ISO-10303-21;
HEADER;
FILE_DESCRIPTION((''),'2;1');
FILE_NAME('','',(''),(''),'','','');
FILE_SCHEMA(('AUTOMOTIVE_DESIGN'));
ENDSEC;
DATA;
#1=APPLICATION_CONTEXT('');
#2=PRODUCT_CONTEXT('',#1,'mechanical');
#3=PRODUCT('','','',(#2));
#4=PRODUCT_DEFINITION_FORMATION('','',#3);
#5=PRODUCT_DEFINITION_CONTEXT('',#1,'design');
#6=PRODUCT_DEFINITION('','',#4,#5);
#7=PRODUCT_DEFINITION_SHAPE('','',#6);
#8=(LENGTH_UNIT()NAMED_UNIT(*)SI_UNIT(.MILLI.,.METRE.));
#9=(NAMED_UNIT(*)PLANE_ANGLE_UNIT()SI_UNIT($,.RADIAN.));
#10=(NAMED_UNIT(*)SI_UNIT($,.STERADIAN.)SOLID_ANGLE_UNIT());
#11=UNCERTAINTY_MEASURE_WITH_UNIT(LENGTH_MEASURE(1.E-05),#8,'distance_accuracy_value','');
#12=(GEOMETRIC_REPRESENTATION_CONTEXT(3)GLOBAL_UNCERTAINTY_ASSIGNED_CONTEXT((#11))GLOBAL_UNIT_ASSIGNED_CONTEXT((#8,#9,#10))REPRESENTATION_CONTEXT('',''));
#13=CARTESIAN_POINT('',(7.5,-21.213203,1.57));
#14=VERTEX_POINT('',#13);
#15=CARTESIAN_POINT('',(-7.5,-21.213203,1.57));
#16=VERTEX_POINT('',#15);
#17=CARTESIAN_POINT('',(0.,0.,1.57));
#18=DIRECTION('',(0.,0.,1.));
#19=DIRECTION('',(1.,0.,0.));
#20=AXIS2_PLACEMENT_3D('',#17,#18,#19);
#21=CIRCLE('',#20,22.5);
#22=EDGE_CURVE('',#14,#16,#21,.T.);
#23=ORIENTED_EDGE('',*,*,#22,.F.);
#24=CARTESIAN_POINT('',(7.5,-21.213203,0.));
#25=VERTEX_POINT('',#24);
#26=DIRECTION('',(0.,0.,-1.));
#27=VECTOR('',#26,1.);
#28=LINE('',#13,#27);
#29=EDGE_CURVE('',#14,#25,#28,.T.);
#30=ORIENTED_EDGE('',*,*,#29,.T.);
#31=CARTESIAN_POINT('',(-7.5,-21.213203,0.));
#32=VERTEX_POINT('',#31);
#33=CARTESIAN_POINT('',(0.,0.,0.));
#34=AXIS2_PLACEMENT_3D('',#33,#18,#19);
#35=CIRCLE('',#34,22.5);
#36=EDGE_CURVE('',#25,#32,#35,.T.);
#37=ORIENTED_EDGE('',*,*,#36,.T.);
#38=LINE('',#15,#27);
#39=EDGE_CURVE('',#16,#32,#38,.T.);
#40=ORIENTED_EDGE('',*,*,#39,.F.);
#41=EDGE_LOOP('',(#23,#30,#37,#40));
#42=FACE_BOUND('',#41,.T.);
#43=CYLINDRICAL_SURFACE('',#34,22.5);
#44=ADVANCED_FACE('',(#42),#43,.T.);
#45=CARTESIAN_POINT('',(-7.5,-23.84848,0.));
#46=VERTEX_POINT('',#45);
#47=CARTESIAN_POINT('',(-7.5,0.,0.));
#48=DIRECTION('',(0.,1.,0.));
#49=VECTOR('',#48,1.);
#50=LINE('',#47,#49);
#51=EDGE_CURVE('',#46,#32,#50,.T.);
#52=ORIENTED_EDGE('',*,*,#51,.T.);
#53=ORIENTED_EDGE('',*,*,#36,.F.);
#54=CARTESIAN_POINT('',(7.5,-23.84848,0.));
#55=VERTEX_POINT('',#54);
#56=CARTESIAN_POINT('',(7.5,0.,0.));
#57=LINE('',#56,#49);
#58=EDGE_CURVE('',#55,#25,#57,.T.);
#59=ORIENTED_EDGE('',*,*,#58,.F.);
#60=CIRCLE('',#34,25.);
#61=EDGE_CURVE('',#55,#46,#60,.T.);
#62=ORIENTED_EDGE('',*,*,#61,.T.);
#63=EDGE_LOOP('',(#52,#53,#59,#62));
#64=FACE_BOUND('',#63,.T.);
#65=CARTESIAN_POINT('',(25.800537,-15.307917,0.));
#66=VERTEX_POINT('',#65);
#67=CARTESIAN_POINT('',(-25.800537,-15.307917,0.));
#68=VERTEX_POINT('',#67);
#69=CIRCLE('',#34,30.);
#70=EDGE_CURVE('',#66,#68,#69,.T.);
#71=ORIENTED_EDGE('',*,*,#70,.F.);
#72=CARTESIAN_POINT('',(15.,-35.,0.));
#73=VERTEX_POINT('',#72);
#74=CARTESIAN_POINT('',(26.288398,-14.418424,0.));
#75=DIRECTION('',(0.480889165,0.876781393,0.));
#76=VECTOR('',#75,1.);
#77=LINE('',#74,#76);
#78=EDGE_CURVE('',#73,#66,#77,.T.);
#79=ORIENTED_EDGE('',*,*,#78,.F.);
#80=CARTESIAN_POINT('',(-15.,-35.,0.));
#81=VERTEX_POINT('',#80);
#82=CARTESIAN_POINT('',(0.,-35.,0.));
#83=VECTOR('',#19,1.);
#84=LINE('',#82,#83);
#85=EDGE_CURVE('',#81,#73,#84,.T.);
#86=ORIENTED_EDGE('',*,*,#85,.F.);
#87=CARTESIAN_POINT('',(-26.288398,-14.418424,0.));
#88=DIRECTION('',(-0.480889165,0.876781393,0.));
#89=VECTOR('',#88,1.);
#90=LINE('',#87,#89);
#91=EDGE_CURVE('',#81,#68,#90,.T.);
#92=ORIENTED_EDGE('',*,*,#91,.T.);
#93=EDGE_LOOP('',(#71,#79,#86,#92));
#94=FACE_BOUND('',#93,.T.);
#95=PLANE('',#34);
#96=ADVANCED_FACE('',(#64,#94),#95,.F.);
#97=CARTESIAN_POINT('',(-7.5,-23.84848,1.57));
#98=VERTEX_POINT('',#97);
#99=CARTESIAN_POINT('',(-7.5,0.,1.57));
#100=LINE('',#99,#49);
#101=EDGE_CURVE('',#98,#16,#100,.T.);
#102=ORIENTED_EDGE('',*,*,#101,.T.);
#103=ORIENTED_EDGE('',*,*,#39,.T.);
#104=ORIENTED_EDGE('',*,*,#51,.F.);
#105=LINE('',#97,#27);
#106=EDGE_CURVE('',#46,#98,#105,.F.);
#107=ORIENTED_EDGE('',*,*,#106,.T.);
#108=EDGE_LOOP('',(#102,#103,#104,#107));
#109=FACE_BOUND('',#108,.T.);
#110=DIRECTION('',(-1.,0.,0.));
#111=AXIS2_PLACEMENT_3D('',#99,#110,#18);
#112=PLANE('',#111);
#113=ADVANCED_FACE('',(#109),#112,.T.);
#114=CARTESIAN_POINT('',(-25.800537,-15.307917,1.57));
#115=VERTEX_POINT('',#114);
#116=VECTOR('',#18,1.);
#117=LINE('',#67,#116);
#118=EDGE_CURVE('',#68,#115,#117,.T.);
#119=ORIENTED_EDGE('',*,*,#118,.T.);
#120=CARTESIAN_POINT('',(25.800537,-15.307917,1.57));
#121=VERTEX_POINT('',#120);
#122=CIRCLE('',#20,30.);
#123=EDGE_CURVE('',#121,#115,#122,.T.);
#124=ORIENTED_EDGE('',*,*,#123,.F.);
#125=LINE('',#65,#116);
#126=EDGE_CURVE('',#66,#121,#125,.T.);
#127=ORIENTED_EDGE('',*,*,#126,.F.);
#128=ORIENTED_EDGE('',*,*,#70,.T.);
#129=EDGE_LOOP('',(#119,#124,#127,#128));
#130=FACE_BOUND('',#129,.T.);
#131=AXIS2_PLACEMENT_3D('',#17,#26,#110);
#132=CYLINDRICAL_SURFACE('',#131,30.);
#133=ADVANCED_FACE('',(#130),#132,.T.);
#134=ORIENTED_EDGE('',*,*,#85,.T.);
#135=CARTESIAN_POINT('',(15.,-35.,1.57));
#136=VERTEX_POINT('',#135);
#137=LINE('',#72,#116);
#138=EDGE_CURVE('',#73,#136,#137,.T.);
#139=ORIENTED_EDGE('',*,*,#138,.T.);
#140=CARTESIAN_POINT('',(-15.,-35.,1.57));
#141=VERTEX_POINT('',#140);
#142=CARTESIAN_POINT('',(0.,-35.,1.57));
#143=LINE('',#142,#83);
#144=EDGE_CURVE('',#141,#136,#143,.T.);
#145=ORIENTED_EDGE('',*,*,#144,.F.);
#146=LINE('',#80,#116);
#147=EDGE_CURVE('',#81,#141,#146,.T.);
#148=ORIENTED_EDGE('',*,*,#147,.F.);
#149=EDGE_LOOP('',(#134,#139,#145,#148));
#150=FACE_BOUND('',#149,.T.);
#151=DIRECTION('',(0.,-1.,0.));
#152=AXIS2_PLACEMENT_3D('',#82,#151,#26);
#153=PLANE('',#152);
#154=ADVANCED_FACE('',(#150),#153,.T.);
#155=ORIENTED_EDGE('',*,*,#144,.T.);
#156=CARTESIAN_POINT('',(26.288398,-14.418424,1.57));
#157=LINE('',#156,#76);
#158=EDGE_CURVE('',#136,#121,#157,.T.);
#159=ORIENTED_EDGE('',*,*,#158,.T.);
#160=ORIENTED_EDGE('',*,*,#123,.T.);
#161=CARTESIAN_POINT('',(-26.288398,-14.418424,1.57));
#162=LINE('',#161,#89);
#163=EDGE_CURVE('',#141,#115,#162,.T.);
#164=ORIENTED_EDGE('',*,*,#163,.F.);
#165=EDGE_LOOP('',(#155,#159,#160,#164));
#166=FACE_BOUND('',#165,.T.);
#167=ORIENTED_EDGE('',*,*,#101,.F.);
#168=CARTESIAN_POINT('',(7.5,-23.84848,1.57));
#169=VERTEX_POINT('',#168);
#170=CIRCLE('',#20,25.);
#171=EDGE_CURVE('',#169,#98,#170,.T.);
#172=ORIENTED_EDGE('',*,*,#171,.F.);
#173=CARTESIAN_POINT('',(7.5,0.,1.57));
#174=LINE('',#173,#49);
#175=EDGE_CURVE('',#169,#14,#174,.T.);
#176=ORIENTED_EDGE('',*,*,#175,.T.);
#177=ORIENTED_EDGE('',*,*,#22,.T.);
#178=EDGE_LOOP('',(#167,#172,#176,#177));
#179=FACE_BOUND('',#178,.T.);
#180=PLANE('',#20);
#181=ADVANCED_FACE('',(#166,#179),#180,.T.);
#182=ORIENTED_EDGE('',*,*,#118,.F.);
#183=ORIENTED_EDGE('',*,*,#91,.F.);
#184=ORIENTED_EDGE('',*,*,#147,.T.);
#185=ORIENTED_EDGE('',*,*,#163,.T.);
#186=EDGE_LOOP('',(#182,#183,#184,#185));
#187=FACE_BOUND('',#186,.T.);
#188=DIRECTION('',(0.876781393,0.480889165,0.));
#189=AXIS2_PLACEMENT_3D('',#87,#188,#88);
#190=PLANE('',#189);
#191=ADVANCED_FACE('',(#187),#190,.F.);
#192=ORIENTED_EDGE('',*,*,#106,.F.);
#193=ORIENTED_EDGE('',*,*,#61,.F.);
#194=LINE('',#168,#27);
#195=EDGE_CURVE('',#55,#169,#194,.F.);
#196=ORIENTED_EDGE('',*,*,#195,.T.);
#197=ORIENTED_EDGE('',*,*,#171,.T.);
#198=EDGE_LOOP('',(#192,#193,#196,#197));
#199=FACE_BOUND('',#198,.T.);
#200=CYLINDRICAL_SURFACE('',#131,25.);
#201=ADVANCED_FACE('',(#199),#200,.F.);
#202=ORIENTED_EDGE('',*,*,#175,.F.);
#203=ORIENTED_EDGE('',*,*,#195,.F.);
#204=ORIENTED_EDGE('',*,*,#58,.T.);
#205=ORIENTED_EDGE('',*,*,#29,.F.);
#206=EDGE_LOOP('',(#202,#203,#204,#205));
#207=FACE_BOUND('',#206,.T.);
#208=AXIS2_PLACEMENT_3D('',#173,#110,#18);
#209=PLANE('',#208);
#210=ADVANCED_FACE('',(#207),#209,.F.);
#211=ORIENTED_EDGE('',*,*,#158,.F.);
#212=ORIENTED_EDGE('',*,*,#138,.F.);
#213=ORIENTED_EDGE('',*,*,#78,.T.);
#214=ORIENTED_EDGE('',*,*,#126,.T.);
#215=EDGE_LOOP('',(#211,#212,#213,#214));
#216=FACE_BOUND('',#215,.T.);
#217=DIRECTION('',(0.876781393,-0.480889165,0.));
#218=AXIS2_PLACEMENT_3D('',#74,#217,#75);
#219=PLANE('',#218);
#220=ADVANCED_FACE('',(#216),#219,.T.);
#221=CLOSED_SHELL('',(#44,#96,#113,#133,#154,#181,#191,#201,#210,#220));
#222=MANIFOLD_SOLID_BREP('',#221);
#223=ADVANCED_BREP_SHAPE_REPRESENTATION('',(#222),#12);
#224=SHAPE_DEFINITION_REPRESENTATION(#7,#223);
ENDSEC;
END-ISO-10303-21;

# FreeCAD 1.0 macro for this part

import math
import FreeCAD as App
import Part
import Sketcher

doc = App.newDocument("Part")
body = doc.addObject("PartDesign::Body", "Body")

# Sketch on XY plane
sketch1 = doc.addObject("Sketcher::SketchObject", "Sketch")
body.addObject(sketch1)
sketch1.AttachmentSupport = (doc.XY_Plane, [""])
sketch1.MapMode = "FlatFace"
sketch1.addGeometry(Part.Circle(App.Vector(0, 0, 0), App.Vector(0, 0, 1), 30), False)
sketch1.addGeometry(Part.Circle(App.Vector(0, 0, 0), App.Vector(0, 0, 1), 25), False)
sketch1.addConstraint(Sketcher.Constraint("Coincident", 0, 3, -1, 1))
sketch1.addConstraint(Sketcher.Constraint("Coincident", 1, 3, -1, 1))
sketch1.addConstraint(Sketcher.Constraint("Diameter", 0, 60.0))
sketch1.addConstraint(Sketcher.Constraint("Diameter", 1, 50.0))
pad1 = doc.addObject("PartDesign::Pad", "Pad")
body.addObject(pad1)
pad1.Profile = sketch1
pad1.Length = 1.57

# Sketch on XY plane
sketch2 = doc.addObject("Sketcher::SketchObject", "Sketch001")
body.addObject(sketch2)
sketch2.AttachmentSupport = (doc.XY_Plane, [""])
sketch2.MapMode = "FlatFace"
sketch2.addGeometry(Part.LineSegment(App.Vector(-26, -15, 0), App.Vector(-15, -35, 0)), False)
sketch2.addGeometry(Part.LineSegment(App.Vector(-15, -35, 0), App.Vector(15, -35, 0)), False)
sketch2.addGeometry(Part.LineSegment(App.Vector(15, -35, 0), App.Vector(26, -15, 0)), False)
sketch2.addGeometry(Part.ArcOfCircle(Part.Circle(App.Vector(0, 0, 0), App.Vector(0, 0, 1), 30), math.radians(-60), math.radians(-31)), False)
sketch2.addGeometry(Part.ArcOfCircle(Part.Circle(App.Vector(0, 0, 0), App.Vector(0, 0, 1), 30), math.radians(-90), math.radians(-60)), False)
sketch2.addGeometry(Part.ArcOfCircle(Part.Circle(App.Vector(0, 0, 0), App.Vector(0, 0, 1), 30), math.radians(-120), math.radians(-90)), False)
sketch2.addGeometry(Part.ArcOfCircle(Part.Circle(App.Vector(0, 0, 0), App.Vector(0, 0, 1), 30), math.radians(-149), math.radians(-120)), False)
sketch2.addConstraint(Sketcher.Constraint("Coincident", 0, 2, 1, 1))
sketch2.addConstraint(Sketcher.Constraint("Coincident", 1, 2, 2, 1))
sketch2.addConstraint(Sketcher.Constraint("Coincident", 2, 2, 3, 2))
sketch2.addConstraint(Sketcher.Constraint("Tangent", 3, 1, 4, 2))
sketch2.addConstraint(Sketcher.Constraint("Tangent", 4, 1, 5, 2))
sketch2.addConstraint(Sketcher.Constraint("Tangent", 5, 1, 6, 2))
sketch2.addConstraint(Sketcher.Constraint("Coincident", 6, 1, 0, 1))
sketch2.addConstraint(Sketcher.Constraint("Horizontal", 1))
sketch2.addConstraint(Sketcher.Constraint("Coincident", 3, 3, -1, 1))
sketch2.addConstraint(Sketcher.Constraint("Coincident", 5, 3, -1, 1))
sketch2.addConstraint(Sketcher.Constraint("Equal", 5, 6))
sketch2.addConstraint(Sketcher.Constraint("PointOnObject", 4, 1, -2))
sketch2.addConstraint(Sketcher.Constraint("Horizontal", 3, 1, 5, 1))
sketch2.addConstraint(Sketcher.Constraint("Horizontal", 2, 2, 6, 1))
sketch2.addConstraint(Sketcher.Constraint("Vertical", 1, 2, 3, 1))
sketch2.addConstraint(Sketcher.Constraint("Vertical", 0, 2, 5, 1))
sketch2.addConstraint(Sketcher.Constraint("Radius", 3, 30.0))
sketch2.addConstraint(Sketcher.Constraint("DistanceX", 1, 1, 1, 2, 30.0))
sketch2.addConstraint(Sketcher.Constraint("DistanceY", 0, 2, -1, 1, 35.0))
sketch2.addConstraint(Sketcher.Constraint("Distance", 0, 22.459513))
pad2 = doc.addObject("PartDesign::Pad", "Pad001")
body.addObject(pad2)
pad2.Profile = sketch2
pad2.Length = 1.57

# Sketch on XY plane
sketch3 = doc.addObject("Sketcher::SketchObject", "Sketch002")
body.addObject(sketch3)
sketch3.AttachmentSupport = (doc.XY_Plane, [""])
sketch3.MapMode = "FlatFace"
sketch3.addGeometry(Part.ArcOfCircle(Part.Circle(App.Vector(0, 0, 0), App.Vector(0, 0, 1), 22.5), math.radians(-109), math.radians(-71)), False)
sketch3.addGeometry(Part.LineSegment(App.Vector(-7.5, -21.2, 0), App.Vector(-7.5, -25, 0)), False)
sketch3.addGeometry(Part.LineSegment(App.Vector(-7.5, -25, 0), App.Vector(7.5, -25, 0)), False)
sketch3.addGeometry(Part.LineSegment(App.Vector(7.5, -25, 0), App.Vector(7.5, -21.2, 0)), False)
sketch3.addConstraint(Sketcher.Constraint("Coincident", 0, 1, 1, 1))
sketch3.addConstraint(Sketcher.Constraint("Coincident", 1, 2, 2, 1))
sketch3.addConstraint(Sketcher.Constraint("Coincident", 2, 2, 3, 1))
sketch3.addConstraint(Sketcher.Constraint("Coincident", 3, 2, 0, 2))
sketch3.addConstraint(Sketcher.Constraint("Vertical", 1))
sketch3.addConstraint(Sketcher.Constraint("Horizontal", 2))
sketch3.addConstraint(Sketcher.Constraint("Vertical", 3))
sketch3.addConstraint(Sketcher.Constraint("Coincident", 0, 3, -1, 1))
sketch3.addConstraint(Sketcher.Constraint("Horizontal", 0, 1, 3, 2))
sketch3.addConstraint(Sketcher.Constraint("Radius", 0, 22.5))
sketch3.addConstraint(Sketcher.Constraint("DistanceX", 2, 1, 2, 2, 15.0))
sketch3.addConstraint(Sketcher.Constraint("DistanceY", 1, 2, -1, 1, 25.0))
pad3 = doc.addObject("PartDesign::Pad", "Pad002")
body.addObject(pad3)
pad3.Profile = sketch3
pad3.Length = 1.57

# Sketch on XY plane
sketch4 = doc.addObject("Sketcher::SketchObject", "Sketch003")
body.addObject(sketch4)
sketch4.AttachmentSupport = (doc.XY_Plane, [""])
sketch4.MapMode = "FlatFace"
sketch4.addGeometry(Part.Circle(App.Vector(0, 0, 0), App.Vector(0, 0, 1), 22), False)
sketch4.addConstraint(Sketcher.Constraint("Coincident", 0, 3, -1, 1))
sketch4.addConstraint(Sketcher.Constraint("Diameter", 0, 45.0))
pad4 = doc.addObject("PartDesign::Pad", "Pad003")
body.addObject(pad4)
pad4.Profile = sketch4
pad4.Length = 1.57

doc.recompute()
